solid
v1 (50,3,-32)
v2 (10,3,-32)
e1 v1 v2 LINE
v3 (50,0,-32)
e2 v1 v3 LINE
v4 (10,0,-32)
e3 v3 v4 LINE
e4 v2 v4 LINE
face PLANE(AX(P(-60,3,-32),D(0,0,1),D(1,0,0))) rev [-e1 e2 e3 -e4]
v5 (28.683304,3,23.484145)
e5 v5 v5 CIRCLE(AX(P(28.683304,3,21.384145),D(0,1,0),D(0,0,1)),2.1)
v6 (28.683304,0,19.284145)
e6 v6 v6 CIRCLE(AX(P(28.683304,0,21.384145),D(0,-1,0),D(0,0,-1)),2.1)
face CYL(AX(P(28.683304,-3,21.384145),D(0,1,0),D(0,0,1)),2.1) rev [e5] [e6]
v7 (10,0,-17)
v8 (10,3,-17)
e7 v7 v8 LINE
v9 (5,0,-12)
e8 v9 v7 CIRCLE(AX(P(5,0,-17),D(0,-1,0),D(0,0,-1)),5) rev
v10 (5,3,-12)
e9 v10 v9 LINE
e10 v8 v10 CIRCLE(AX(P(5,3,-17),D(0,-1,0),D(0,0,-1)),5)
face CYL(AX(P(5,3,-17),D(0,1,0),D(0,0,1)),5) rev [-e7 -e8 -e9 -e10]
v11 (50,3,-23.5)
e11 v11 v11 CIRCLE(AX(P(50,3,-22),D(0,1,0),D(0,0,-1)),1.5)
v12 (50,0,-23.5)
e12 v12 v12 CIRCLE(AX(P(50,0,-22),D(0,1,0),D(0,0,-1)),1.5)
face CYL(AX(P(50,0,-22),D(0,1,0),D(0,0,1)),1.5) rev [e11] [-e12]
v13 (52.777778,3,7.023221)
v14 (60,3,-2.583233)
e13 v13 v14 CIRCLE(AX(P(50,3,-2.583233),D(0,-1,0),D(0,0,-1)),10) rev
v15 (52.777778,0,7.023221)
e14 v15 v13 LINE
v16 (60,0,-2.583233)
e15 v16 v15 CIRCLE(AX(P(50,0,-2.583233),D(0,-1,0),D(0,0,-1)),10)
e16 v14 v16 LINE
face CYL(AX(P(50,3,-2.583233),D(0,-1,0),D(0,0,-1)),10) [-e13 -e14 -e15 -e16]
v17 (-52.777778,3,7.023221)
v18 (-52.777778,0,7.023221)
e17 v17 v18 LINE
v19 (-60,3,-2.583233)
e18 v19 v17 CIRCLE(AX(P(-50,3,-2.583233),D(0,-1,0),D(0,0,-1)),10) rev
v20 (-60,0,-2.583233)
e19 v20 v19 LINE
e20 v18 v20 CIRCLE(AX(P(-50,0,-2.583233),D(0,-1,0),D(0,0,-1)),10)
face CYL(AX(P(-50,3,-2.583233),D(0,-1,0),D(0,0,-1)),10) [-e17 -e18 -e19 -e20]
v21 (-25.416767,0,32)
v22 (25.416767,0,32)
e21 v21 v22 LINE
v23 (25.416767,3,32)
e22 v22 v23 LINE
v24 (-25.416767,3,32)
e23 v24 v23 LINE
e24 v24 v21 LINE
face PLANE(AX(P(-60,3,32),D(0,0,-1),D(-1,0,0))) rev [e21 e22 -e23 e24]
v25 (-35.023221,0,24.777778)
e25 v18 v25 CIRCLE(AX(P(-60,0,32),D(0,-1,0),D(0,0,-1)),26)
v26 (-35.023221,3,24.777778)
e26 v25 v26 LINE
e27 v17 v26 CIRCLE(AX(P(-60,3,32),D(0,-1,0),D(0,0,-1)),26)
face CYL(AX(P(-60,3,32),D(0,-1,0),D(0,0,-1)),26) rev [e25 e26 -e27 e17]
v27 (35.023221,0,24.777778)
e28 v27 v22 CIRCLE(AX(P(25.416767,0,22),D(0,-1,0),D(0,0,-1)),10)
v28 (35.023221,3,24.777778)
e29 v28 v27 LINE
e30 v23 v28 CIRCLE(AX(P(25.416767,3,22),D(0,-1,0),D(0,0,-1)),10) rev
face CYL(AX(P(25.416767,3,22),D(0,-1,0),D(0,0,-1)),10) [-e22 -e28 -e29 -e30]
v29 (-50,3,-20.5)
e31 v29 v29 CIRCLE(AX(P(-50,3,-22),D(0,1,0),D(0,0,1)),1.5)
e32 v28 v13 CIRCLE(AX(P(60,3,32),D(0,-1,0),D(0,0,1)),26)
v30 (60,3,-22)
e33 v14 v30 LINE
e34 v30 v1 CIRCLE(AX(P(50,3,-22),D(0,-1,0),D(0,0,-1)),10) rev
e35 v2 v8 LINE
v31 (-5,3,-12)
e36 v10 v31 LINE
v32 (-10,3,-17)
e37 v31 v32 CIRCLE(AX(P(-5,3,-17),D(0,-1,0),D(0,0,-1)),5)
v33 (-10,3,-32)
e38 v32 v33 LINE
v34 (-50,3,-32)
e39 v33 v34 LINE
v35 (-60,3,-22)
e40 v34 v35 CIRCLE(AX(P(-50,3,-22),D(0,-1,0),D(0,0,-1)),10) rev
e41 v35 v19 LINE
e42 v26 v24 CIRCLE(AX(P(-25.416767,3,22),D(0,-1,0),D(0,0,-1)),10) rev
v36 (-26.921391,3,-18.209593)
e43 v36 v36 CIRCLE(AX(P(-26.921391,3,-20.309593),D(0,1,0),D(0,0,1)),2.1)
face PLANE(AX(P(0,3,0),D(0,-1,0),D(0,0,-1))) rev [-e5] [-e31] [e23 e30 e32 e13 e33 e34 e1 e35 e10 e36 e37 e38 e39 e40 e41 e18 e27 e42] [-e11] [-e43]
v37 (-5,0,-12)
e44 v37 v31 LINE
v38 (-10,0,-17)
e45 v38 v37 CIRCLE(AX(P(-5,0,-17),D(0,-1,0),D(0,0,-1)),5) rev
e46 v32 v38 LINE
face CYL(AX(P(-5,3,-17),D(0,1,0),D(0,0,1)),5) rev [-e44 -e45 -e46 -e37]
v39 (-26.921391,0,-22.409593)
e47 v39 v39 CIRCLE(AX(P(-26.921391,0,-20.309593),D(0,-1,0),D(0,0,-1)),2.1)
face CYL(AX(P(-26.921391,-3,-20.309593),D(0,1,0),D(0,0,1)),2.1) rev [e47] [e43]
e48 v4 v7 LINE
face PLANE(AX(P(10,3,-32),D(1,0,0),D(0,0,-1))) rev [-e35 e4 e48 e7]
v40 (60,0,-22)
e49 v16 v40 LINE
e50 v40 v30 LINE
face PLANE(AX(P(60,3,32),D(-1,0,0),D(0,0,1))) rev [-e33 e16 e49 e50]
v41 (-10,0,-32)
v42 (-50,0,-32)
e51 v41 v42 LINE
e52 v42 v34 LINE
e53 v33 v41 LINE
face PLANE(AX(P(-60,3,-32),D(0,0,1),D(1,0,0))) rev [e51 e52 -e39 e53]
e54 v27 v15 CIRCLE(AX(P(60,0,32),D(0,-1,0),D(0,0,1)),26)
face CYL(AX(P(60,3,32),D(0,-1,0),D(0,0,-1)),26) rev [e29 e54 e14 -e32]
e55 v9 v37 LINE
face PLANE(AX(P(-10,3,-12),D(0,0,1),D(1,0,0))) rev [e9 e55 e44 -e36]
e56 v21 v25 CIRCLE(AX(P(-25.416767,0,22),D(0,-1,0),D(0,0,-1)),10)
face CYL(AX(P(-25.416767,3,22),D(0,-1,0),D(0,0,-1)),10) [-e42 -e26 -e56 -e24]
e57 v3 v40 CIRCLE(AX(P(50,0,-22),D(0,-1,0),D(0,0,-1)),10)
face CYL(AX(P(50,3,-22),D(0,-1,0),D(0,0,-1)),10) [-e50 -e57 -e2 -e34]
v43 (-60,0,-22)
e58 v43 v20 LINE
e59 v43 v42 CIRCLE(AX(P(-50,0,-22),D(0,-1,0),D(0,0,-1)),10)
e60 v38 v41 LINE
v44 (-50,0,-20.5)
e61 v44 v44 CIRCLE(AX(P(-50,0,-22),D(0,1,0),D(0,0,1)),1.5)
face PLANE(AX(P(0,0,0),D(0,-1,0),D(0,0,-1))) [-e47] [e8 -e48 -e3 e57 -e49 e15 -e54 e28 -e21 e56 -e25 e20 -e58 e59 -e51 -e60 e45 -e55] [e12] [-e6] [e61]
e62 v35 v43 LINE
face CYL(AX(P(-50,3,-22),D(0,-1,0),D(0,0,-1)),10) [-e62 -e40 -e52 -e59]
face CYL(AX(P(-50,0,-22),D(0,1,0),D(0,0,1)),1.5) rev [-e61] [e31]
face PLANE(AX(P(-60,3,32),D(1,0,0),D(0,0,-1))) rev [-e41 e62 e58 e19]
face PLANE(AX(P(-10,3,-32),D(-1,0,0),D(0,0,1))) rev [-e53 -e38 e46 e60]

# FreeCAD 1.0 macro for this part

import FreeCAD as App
import Part
import Sketcher
Q = App.Units.Quantity


def edges_at(feature, points):
    """Names of the edges that pass closest to the given points."""
    edges = feature.Shape.Edges
    near = lambda p: min(range(len(edges)), key=lambda i: edges[i].distToShape(Part.Vertex(*p))[0])
    return sorted({f"Edge{near(p) + 1}" for p in points})


def add_polygon(sketch, points):
    """Adds a closed chain of lines whose ends are joined by coincident constraints."""
    first, n = sketch.GeometryCount, len(points)
    for a, b in zip(points, points[1:] + points[:1]):
        sketch.addGeometry(Part.LineSegment(App.Vector(*a, 0), App.Vector(*b, 0)), False)
    for i in range(n):
        sketch.addConstraint(Sketcher.Constraint("Coincident", first + i, 2, first + (i + 1) % n, 1))

doc = App.newDocument("Part")
params = doc.addObject("Spreadsheet::Sheet", "Params")
for row, (alias, value) in enumerate([
    ("sketch1_width", "120 mm"),
    ("sketch1_height", "64 mm"),
    ("pad1_length", "3 mm"),
    ("sketch2_diameter", "3 mm"),
    ("pocket1_length", "3 mm"),
    ("fillet_radius", "10 mm"),
    ("sketch3_width", "20 mm"),
    ("pocket2_length", "3 mm"),
    ("sketch4_diameter", "52 mm"),
    ("pocket3_length", "3 mm"),
    ("fillet2_radius", "5 mm"),
    ("fillet3_radius", "10 mm"),
    ("fillet4_radius", "10 mm"),
    ("sketch5_diameter", "4.2 mm"),
    ("pocket4_length", "6 mm"),
], start=1):
    params.set(f"A{row}", alias)
    params.set(f"B{row}", "=" + value)
    params.setAlias(f"B{row}", alias)

body = doc.addObject("PartDesign::Body", "Body")

sketch1 = doc.addObject("Sketcher::SketchObject", "Sketch")
body.addObject(sketch1)
sketch1.AttachmentSupport = (doc.XZ_Plane, [""])
sketch1.MapMode = "FlatFace"
add_polygon(sketch1, [(-60, -32), (-60, 32), (60, 32), (60, -32)])
sketch1.addConstraint(Sketcher.Constraint("Vertical", 0))
sketch1.addConstraint(Sketcher.Constraint("Horizontal", 1))
sketch1.addConstraint(Sketcher.Constraint("Vertical", 2))
sketch1.addConstraint(Sketcher.Constraint("Horizontal", 3))
sketch1.addConstraint(Sketcher.Constraint("Symmetric", 0, 2, 2, 2, -1, 1))
sketch1.addConstraint(Sketcher.Constraint("DistanceX", 1, 1, 1, 2, Q("120 mm")))
sketch1.addConstraint(Sketcher.Constraint("DistanceY", 0, 1, 0, 2, Q("64 mm")))
sketch1.setExpression("Constraints[9]", "Params.sketch1_width")
sketch1.setExpression("Constraints[10]", "Params.sketch1_height")
pad1 = doc.addObject("PartDesign::Pad", "Pad")
body.addObject(pad1)
pad1.Profile = sketch1
pad1.setExpression("Length", "Params.pad1_length")
pad1.Reversed = True

sketch2 = doc.addObject("Sketcher::SketchObject", "Sketch001")
body.addObject(sketch2)
sketch2.AttachmentSupport = (doc.XZ_Plane, [""])
sketch2.MapMode = "FlatFace"
sketch2.AttachmentOffset = App.Placement(App.Vector(0, 0, -3), App.Rotation())
sketch2.addGeometry(Part.Circle(App.Vector(-50, -22, 0), App.Vector(0, 0, 1), 1.5), False)
sketch2.addGeometry(Part.Circle(App.Vector(50, -22, 0), App.Vector(0, 0, 1), 1.5), False)
sketch2.addConstraint(Sketcher.Constraint("Equal", 0, 1))
sketch2.addConstraint(Sketcher.Constraint("Symmetric", 0, 3, 1, 3, -2))
sketch2.addConstraint(Sketcher.Constraint("Diameter", 0, Q("3 mm")))
sketch2.addConstraint(Sketcher.Constraint("DistanceX", 0, 3, -1, 1, Q("50 mm")))
sketch2.addConstraint(Sketcher.Constraint("DistanceY", 0, 3, -1, 1, Q("22 mm")))
sketch2.setExpression("Constraints[2]", "Params.sketch2_diameter")
pocket1 = doc.addObject("PartDesign::Pocket", "Pocket")
body.addObject(pocket1)
pocket1.Profile = sketch2
pocket1.setExpression("Length", "Params.pocket1_length")
pocket1.Reversed = True
doc.recompute()

fillet = doc.addObject("PartDesign::Fillet", "Fillet")
body.addObject(fillet)
fillet.Base = (pocket1, edges_at(pocket1, [(-60, 1.5, -32), (60, 1.5, -32)]))
fillet.setExpression("Radius", "Params.fillet_radius")

sketch3 = doc.addObject("Sketcher::SketchObject", "Sketch002")
body.addObject(sketch3)
sketch3.AttachmentSupport = (doc.XZ_Plane, [""])
sketch3.MapMode = "FlatFace"
add_polygon(sketch3, [(-10, -12), (-10, -32), (10, -32), (10, -12)])
sketch3.addConstraint(Sketcher.Constraint("Vertical", 0))
sketch3.addConstraint(Sketcher.Constraint("Horizontal", 1))
sketch3.addConstraint(Sketcher.Constraint("Vertical", 2))
sketch3.addConstraint(Sketcher.Constraint("Horizontal", 3))
sketch3.addConstraint(Sketcher.Constraint("Equal", 3, 0))
sketch3.addConstraint(Sketcher.Constraint("DistanceX", 1, 1, 1, 2, Q("20 mm")))
sketch3.addConstraint(Sketcher.Constraint("DistanceX", 0, 2, -1, 1, Q("10 mm")))
sketch3.addConstraint(Sketcher.Constraint("DistanceY", 0, 2, -1, 1, Q("32 mm")))
sketch3.setExpression("Constraints[9]", "Params.sketch3_width")
pocket2 = doc.addObject("PartDesign::Pocket", "Pocket001")
body.addObject(pocket2)
pocket2.Profile = sketch3
pocket2.setExpression("Length", "Params.pocket2_length")

sketch4 = doc.addObject("Sketcher::SketchObject", "Sketch003")
body.addObject(sketch4)
sketch4.AttachmentSupport = (doc.XZ_Plane, [""])
sketch4.MapMode = "FlatFace"
sketch4.addGeometry(Part.Circle(App.Vector(-60, 32, 0), App.Vector(0, 0, 1), 26), False)
sketch4.addGeometry(Part.Circle(App.Vector(60, 32, 0), App.Vector(0, 0, 1), 26), False)
sketch4.addConstraint(Sketcher.Constraint("Equal", 0, 1))
sketch4.addConstraint(Sketcher.Constraint("Symmetric", 0, 3, 1, 3, -2))
sketch4.addConstraint(Sketcher.Constraint("Diameter", 0, Q("52 mm")))
sketch4.addConstraint(Sketcher.Constraint("DistanceX", 0, 3, -1, 1, Q("60 mm")))
sketch4.addConstraint(Sketcher.Constraint("DistanceY", -1, 1, 0, 3, Q("32 mm")))
sketch4.setExpression("Constraints[2]", "Params.sketch4_diameter")
pocket3 = doc.addObject("PartDesign::Pocket", "Pocket002")
body.addObject(pocket3)
pocket3.Profile = sketch4
pocket3.setExpression("Length", "Params.pocket3_length")
doc.recompute()

fillet2 = doc.addObject("PartDesign::Fillet", "Fillet001")
body.addObject(fillet2)
fillet2.Base = (pocket3, edges_at(pocket3, [(-10, 1.5, -12), (10, 1.5, -12)]))
fillet2.setExpression("Radius", "Params.fillet2_radius")
doc.recompute()

fillet3 = doc.addObject("PartDesign::Fillet", "Fillet002")
body.addObject(fillet3)
fillet3.Base = (fillet2, edges_at(fillet2, [(-60, 1.5, 6), (60, 1.5, 6)]))
fillet3.setExpression("Radius", "Params.fillet3_radius")
doc.recompute()

fillet4 = doc.addObject("PartDesign::Fillet", "Fillet003")
body.addObject(fillet4)
fillet4.Base = (fillet3, edges_at(fillet3, [(-34, 1.5, 32), (34, 1.5, 32)]))
fillet4.setExpression("Radius", "Params.fillet4_radius")

sketch5 = doc.addObject("Sketcher::SketchObject", "Sketch004")
body.addObject(sketch5)
sketch5.AttachmentSupport = (doc.XZ_Plane, [""])
sketch5.MapMode = "FlatFace"
sketch5.AttachmentOffset = App.Placement(App.Vector(0, 0, -3), App.Rotation())
sketch5.addGeometry(Part.Circle(App.Vector(-26.9, -20.3, 0), App.Vector(0, 0, 1), 2.1), False)
sketch5.addGeometry(Part.Circle(App.Vector(28.7, 21.4, 0), App.Vector(0, 0, 1), 2.1), False)
sketch5.addConstraint(Sketcher.Constraint("Equal", 0, 1))
sketch5.addConstraint(Sketcher.Constraint("Diameter", 0, Q("4.2 mm")))
sketch5.addConstraint(Sketcher.Constraint("DistanceX", 0, 3, -1, 1, Q("26.921391 mm")))
sketch5.addConstraint(Sketcher.Constraint("DistanceY", 0, 3, 1, 3, Q("41.693738 mm")))
sketch5.addConstraint(Sketcher.Constraint("DistanceY", 0, 3, -1, 1, Q("20.309593 mm")))
sketch5.addConstraint(Sketcher.Constraint("DistanceX", -1, 1, 1, 3, Q("28.683304 mm")))
sketch5.setExpression("Constraints[1]", "Params.sketch5_diameter")
pocket4 = doc.addObject("PartDesign::Pocket", "Pocket003")
body.addObject(pocket4)
pocket4.Profile = sketch5
pocket4.setExpression("Length", "Params.pocket4_length")
pocket4.Reversed = True

doc.recompute()
